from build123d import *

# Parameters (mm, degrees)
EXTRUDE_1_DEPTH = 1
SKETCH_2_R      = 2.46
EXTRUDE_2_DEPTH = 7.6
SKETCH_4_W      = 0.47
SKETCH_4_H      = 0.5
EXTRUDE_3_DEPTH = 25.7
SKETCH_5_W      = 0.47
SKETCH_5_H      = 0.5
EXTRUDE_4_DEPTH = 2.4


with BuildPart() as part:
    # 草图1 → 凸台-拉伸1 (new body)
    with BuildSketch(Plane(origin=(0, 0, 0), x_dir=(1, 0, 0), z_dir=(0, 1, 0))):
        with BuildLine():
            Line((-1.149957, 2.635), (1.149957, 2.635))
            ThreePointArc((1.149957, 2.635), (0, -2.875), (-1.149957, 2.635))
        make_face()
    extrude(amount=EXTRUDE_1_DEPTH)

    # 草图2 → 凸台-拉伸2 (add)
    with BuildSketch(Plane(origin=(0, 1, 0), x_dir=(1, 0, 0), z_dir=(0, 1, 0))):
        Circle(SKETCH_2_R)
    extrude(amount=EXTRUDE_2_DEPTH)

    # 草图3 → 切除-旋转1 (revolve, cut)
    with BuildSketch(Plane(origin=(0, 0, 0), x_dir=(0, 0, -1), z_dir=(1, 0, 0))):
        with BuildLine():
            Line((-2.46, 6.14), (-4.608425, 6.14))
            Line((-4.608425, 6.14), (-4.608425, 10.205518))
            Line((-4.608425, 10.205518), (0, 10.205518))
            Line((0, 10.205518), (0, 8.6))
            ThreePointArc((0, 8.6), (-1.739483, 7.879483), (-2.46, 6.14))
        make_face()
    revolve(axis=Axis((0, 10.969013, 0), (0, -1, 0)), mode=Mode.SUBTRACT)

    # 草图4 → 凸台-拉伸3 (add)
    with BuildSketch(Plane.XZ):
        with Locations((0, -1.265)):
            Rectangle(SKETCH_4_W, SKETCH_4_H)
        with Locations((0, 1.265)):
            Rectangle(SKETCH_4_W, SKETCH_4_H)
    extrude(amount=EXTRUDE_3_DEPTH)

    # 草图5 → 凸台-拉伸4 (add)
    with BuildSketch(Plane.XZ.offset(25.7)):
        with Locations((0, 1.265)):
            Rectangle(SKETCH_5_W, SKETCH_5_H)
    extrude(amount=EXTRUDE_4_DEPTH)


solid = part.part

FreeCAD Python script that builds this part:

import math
import FreeCAD as App
import Part
import Sketcher

V = App.Vector


def add_polygon(sketch, points):
    """Adds a closed chain of lines whose ends are joined by coincident constraints."""
    first, n = sketch.GeometryCount, len(points)
    for a, b in zip(points, points[1:] + points[:1]):
        sketch.addGeometry(Part.LineSegment(App.Vector(*a, 0), App.Vector(*b, 0)), False)
    for i in range(n):
        sketch.addConstraint(Sketcher.Constraint("Coincident", first + i, 2, first + (i + 1) % n, 1))

doc = App.newDocument("Part")
body = doc.addObject("PartDesign::Body", "Body")

# Sketch on XZ plane
sketch1 = body.newObject("Sketcher::SketchObject", "Sketch")
sketch1.AttachmentSupport = (doc.getObject("XZ_Plane"), [""])
sketch1.MapMode = "FlatFace"
sketch1.addGeometry([
    Part.LineSegment(V(1.149957, -2.635, 0), V(-1.149957, -2.635, 0)),
    Part.ArcOfCircle(Part.Circle(V(0, 0, 0), V(0, 0, 1), 2.875), math.radians(-66.422757), math.radians(246.422757)),
], False)
sketch1.addConstraint([
    Sketcher.Constraint("Coincident", 0, 1, 1, 1),
    Sketcher.Constraint("Coincident", 1, 2, 0, 2),
    Sketcher.Constraint("Horizontal", 0),
    Sketcher.Constraint("Coincident", 1, 3, -1, 1),
    Sketcher.Constraint("Radius", 1, 2.875),
    Sketcher.Constraint("DistanceY", 0, 1, -1, 1, 2.635),
])
pad1 = body.newObject("PartDesign::Pad", "Pad")
pad1.Profile = sketch1
pad1.Length = 1
pad1.Reversed = True

# Sketch on XZ plane
sketch2 = body.newObject("Sketcher::SketchObject", "Sketch001")
sketch2.AttachmentSupport = (doc.getObject("XZ_Plane"), [""])
sketch2.MapMode = "FlatFace"
sketch2.AttachmentOffset = App.Placement(V(0, 0, -1), App.Rotation())
sketch2.addGeometry(Part.Circle(V(0, 0, 0), V(0, 0, 1), 2.46), False)
sketch2.addConstraint([
    Sketcher.Constraint("Coincident", 0, 3, -1, 1),
    Sketcher.Constraint("Diameter", 0, 4.92),
])
pad2 = body.newObject("PartDesign::Pad", "Pad001")
pad2.Profile = sketch2
pad2.Length = 7.6
pad2.Reversed = True

# Sketch on YZ plane
sketch3 = body.newObject("Sketcher::SketchObject", "Sketch002")
sketch3.AttachmentSupport = (doc.getObject("YZ_Plane"), [""])
sketch3.MapMode = "FlatFace"
sketch3.addGeometry([
    Part.LineSegment(V(6.14, 4.608425, 0), V(6.14, 2.46, 0)),  # 0
    Part.ArcOfCircle(Part.Circle(V(6.140001, 0.000001, 0), V(0, 0, 1), 2.459999), math.radians(-0.000025), math.radians(90.000025)),  # 1
    Part.LineSegment(V(8.6, 0, 0), V(10.205518, 0, 0)),  # 2
    Part.LineSegment(V(10.205518, 0, 0), V(10.205518, 4.608425, 0)),  # 3
    Part.LineSegment(V(10.205518, 4.608425, 0), V(6.14, 4.608425, 0)),  # 4
], False)
sketch3.addConstraint([
    Sketcher.Constraint("Coincident", 0, 2, 1, 2),
    Sketcher.Constraint("Coincident", 1, 1, 2, 1),
    Sketcher.Constraint("Coincident", 2, 2, 3, 1),
    Sketcher.Constraint("Coincident", 3, 2, 4, 1),
    Sketcher.Constraint("Coincident", 4, 2, 0, 1),
    Sketcher.Constraint("Vertical", 0),
    Sketcher.Constraint("Horizontal", 2),
    Sketcher.Constraint("Vertical", 3),
    Sketcher.Constraint("Horizontal", 4),
    Sketcher.Constraint("PointOnObject", 1, 3, -1),
    Sketcher.Constraint("PointOnObject", 1, 1, -1),
    Sketcher.Constraint("Vertical", 1, 3, 0, 2),
    Sketcher.Constraint("Radius", 1, 2.459999),
    Sketcher.Constraint("DistanceX", -1, 1, 1, 1, 8.6),
    Sketcher.Constraint("DistanceX", 2, 1, 2, 2, 1.605518),
    Sketcher.Constraint("DistanceY", 0, 2, 0, 1, 2.148425),
])
groove = body.newObject("PartDesign::Groove", "Groove")
groove.Profile = sketch3
groove.ReferenceAxis = (sketch3, ["H_Axis"])
groove.Angle = 360

# Sketch on XZ plane
sketch4 = body.newObject("Sketcher::SketchObject", "Sketch003")
sketch4.AttachmentSupport = (doc.getObject("XZ_Plane"), [""])
sketch4.MapMode = "FlatFace"
add_polygon(sketch4, [(-0.235, -1.015), (-0.235, -1.515), (0.235, -1.515), (0.235, -1.015)])  # lines 0-3
add_polygon(sketch4, [(-0.235, 1.515), (-0.235, 1.015), (0.235, 1.015), (0.235, 1.515)])  # lines 4-7
sketch4.addConstraint([
    Sketcher.Constraint("Vertical", 0),
    Sketcher.Constraint("Horizontal", 1),
    Sketcher.Constraint("Vertical", 2),
    Sketcher.Constraint("Horizontal", 3),
    Sketcher.Constraint("Vertical", 4),
    Sketcher.Constraint("Horizontal", 5),
    Sketcher.Constraint("Vertical", 6),
    Sketcher.Constraint("Horizontal", 7),
    Sketcher.Constraint("Symmetric", 2, 2, 4, 2, -1, 1),
    Sketcher.Constraint("Symmetric", 0, 2, 6, 2, -1, 1),
    Sketcher.Constraint("Vertical", 3, 2, 4, 2),
    Sketcher.Constraint("DistanceY", 0, 2, 0, 1, 0.5),
    Sketcher.Constraint("DistanceX", 1, 1, 1, 2, 0.47),
    Sketcher.Constraint("DistanceY", 3, 2, 4, 2, 2.03),
])
pad3 = body.newObject("PartDesign::Pad", "Pad002")
pad3.Profile = sketch4
pad3.Length = 25.7

# Sketch on XZ plane
sketch5 = body.newObject("Sketcher::SketchObject", "Sketch004")
sketch5.AttachmentSupport = (doc.getObject("XZ_Plane"), [""])
sketch5.MapMode = "FlatFace"
sketch5.AttachmentOffset = App.Placement(V(0, 0, 25.7), App.Rotation())
add_polygon(sketch5, [(-0.235, 1.515), (-0.235, 1.015), (0.235, 1.015), (0.235, 1.515)])  # lines 0-3
sketch5.addConstraint([
    Sketcher.Constraint("Vertical", 0),
    Sketcher.Constraint("Horizontal", 1),
    Sketcher.Constraint("Vertical", 2),
    Sketcher.Constraint("Horizontal", 3),
    Sketcher.Constraint("DistanceY", 0, 2, 0, 1, 0.5),
    Sketcher.Constraint("DistanceX", 1, 1, 1, 2, 0.47),
    Sketcher.Constraint("DistanceX", 0, 2, -1, 1, 0.235),
    Sketcher.Constraint("DistanceY", -1, 1, 0, 2, 1.015),
])
pad4 = body.newObject("PartDesign::Pad", "Pad003")
pad4.Profile = sketch5
pad4.Length = 2.4

doc.recompute()
